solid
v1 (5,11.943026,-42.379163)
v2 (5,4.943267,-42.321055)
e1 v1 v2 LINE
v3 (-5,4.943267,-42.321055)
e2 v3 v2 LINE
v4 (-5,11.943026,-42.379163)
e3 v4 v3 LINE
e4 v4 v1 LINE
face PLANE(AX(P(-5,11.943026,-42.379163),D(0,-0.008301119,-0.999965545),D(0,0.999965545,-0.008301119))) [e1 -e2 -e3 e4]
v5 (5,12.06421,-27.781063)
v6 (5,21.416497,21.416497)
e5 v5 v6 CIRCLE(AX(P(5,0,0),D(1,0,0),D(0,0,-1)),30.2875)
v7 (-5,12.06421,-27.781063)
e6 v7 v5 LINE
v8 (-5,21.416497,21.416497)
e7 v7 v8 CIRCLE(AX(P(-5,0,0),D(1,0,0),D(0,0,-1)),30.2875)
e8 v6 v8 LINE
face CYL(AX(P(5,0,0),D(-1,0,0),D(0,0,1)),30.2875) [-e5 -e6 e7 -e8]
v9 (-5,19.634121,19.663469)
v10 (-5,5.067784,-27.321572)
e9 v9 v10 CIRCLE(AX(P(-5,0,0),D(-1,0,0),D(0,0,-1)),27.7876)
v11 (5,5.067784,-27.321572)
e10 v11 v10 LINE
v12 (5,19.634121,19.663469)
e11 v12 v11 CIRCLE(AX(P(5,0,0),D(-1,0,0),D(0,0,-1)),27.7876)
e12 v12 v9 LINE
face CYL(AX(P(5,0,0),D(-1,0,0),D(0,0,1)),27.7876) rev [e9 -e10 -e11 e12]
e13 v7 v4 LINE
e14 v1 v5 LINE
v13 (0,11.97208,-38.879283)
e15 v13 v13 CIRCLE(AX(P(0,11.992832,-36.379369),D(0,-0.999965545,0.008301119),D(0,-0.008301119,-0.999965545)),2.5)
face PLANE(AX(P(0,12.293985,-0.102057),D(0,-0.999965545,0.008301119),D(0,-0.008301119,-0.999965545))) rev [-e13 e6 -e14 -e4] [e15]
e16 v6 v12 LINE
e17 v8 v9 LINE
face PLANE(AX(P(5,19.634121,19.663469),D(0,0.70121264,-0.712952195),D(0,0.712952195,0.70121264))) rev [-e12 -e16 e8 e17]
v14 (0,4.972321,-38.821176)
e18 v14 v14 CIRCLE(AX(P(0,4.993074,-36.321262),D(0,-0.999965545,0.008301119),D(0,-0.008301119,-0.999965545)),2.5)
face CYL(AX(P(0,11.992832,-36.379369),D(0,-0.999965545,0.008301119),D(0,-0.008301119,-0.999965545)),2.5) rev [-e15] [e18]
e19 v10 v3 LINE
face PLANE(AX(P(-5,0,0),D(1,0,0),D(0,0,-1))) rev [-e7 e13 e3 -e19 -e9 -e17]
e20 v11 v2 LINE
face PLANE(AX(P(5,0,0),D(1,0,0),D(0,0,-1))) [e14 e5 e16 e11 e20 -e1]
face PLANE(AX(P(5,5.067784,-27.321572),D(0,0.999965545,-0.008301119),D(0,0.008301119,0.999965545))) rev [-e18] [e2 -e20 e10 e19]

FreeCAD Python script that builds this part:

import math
import FreeCAD as App
import Part
import Sketcher

V = App.Vector

doc = App.newDocument("Part")
body = doc.addObject("PartDesign::Body", "Body")

# Sketch on YZ plane
sketch1 = body.newObject("Sketcher::SketchObject", "Sketch")
sketch1.AttachmentSupport = (doc.getObject("YZ_Plane"), [""])
sketch1.MapMode = "FlatFace"
sketch1.addGeometry([
    Part.LineSegment(V(21.416497, 21.416497, 0), V(19.634121, 19.663469, 0)),
    Part.ArcOfCircle(Part.Circle(V(0, 0, 0), V(0, 0, 1), 27.7876), math.radians(-79.49183), math.radians(45.04279)),
    Part.LineSegment(V(5.067784, -27.321572, 0), V(5.046677, -29.864087, 0)),
    Part.ArcOfCircle(Part.Circle(V(0, 0, 0), V(0, 0, 1), 30.2875), math.radians(-80.40831), math.radians(45)),
], False)
sketch1.addConstraint([
    Sketcher.Constraint("Coincident", 0, 2, 1, 2),
    Sketcher.Constraint("Coincident", 1, 1, 2, 1),
    Sketcher.Constraint("Coincident", 2, 2, 3, 1),
    Sketcher.Constraint("Coincident", 3, 2, 0, 1),
    Sketcher.Constraint("Coincident", 1, 3, -1, 1),
    Sketcher.Constraint("Coincident", 3, 3, -1, 1),
    Sketcher.Constraint("Radius", 1, 27.7876),
    Sketcher.Constraint("Radius", 3, 30.2875),
    Sketcher.Constraint("DistanceX", -1, 1, 0, 2, 19.634121),
    Sketcher.Constraint("DistanceY", 1, 1, -1, 1, 27.321572),
    Sketcher.Constraint("DistanceY", 1, 1, 3, 2, 48.738068),
    Sketcher.Constraint("DistanceX", 2, 2, 3, 2, 16.369819),
])
pad1 = body.newObject("PartDesign::Pad", "Pad")
pad1.Profile = sketch1
pad1.Length = 10
pad1.Midplane = True

# Sketch on an angled plane
sketch2 = body.newObject("Sketcher::SketchObject", "Sketch001")
sketch2.Placement = App.Placement(V(0, 5.294226, -0.04395), App.Rotation(V(1, 0, 0), V(0, 0.008301119, 0.999965545), V(0, -0.999965545, 0.008301119), "ZXY"))
sketch2.addGeometry([
    Part.LineSegment(V(-5, -27.278562, 0), V(-5, -42.278562, 0)),  # 0
    Part.LineSegment(V(-5, -42.278562, 0), V(5, -42.278562, 0)),  # 1
    Part.LineSegment(V(5, -42.278562, 0), V(5, -27.278562, 0)),  # 2
    Part.LineSegment(V(5, -27.278562, 0), V(-5, -27.278562, 0)),  # 3
    Part.Circle(V(0, -36.278562, 0), V(0, 0, 1), 2.5),  # 4
], False)
sketch2.addConstraint([
    Sketcher.Constraint("Coincident", 0, 2, 1, 1),
    Sketcher.Constraint("Coincident", 1, 2, 2, 1),
    Sketcher.Constraint("Coincident", 2, 2, 3, 1),
    Sketcher.Constraint("Coincident", 3, 2, 0, 1),
    Sketcher.Constraint("Vertical", 0),
    Sketcher.Constraint("Horizontal", 1),
    Sketcher.Constraint("Vertical", 2),
    Sketcher.Constraint("Horizontal", 3),
    Sketcher.Constraint("PointOnObject", 4, 3, -2),
    Sketcher.Constraint("Diameter", 4, 5.0),
    Sketcher.Constraint("DistanceX", 1, 1, 1, 2, 10.0),
    Sketcher.Constraint("DistanceY", 0, 2, 0, 1, 15.0),
    Sketcher.Constraint("DistanceX", 0, 2, -1, 1, 5.0),
    Sketcher.Constraint("DistanceY", 0, 2, 4, 3, 6.0),
    Sketcher.Constraint("DistanceY", 4, 3, -1, 1, 36.278562),
])
pad2 = body.newObject("PartDesign::Pad", "Pad001")
pad2.Profile = sketch2
pad2.Length = 7
pad2.Reversed = True

doc.recompute()
